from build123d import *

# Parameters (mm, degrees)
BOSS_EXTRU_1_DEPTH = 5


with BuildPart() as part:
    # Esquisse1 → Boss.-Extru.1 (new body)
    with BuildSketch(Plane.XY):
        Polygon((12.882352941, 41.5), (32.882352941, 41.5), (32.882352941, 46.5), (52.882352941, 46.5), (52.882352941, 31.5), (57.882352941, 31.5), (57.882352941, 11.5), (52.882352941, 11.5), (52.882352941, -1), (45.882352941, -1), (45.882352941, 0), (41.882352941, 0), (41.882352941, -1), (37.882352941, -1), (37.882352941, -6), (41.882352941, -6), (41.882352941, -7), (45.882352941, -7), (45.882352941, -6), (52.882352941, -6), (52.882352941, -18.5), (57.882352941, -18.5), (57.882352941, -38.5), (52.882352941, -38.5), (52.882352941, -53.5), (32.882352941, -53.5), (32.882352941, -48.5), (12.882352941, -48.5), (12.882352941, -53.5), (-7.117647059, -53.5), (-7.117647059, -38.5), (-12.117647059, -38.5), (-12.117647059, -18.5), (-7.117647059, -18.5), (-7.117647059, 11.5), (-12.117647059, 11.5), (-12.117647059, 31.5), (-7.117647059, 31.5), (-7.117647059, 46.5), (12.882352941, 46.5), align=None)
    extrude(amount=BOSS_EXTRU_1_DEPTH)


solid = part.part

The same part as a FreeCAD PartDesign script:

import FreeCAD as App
import Part
import Sketcher

V = App.Vector


def add_polygon(sketch, points):
    """Adds a closed chain of lines whose ends are joined by coincident constraints."""
    first, n = sketch.GeometryCount, len(points)
    for a, b in zip(points, points[1:] + points[:1]):
        sketch.addGeometry(Part.LineSegment(App.Vector(*a, 0), App.Vector(*b, 0)), False)
    for i in range(n):
        sketch.addConstraint(Sketcher.Constraint("Coincident", first + i, 2, first + (i + 1) % n, 1))

doc = App.newDocument("Part")
params = doc.addObject("Spreadsheet::Sheet", "Params")
for row, (alias, value) in enumerate([
    ("sketch1_width", "20 mm"),
    ("sketch1_width2", "5 mm"),
    ("sketch1_width3", "7 mm"),
    ("sketch1_width4", "4 mm"),
    ("sketch1_height", "15 mm"),
    ("pad1_length", "5 mm"),
], start=1):
    params.set(f"A{row}", alias)
    params.set(f"B{row}", "=" + value)
    params.setAlias(f"B{row}", alias)

body = doc.addObject("PartDesign::Body", "Body")

# Sketch on XY plane
sketch1 = doc.addObject("Sketcher::SketchObject", "Sketch")
body.addObject(sketch1)
sketch1.AttachmentSupport = (doc.XY_Plane, [""])
sketch1.MapMode = "FlatFace"
add_polygon(sketch1, [(32.882353, 41.5), (12.882353, 41.5), (12.882353, 46.5), (-7.117647, 46.5), (-7.117647, 31.5), (-12.117647, 31.5), (-12.117647, 11.5), (-7.117647, 11.5), (-7.117647, -18.5), (-12.117647, -18.5), (-12.117647, -38.5), (-7.117647, -38.5), (-7.117647, -53.5), (12.882353, -53.5), (12.882353, -48.5), (32.882353, -48.5), (32.882353, -53.5), (52.882353, -53.5), (52.882353, -38.5), (57.882353, -38.5), (57.882353, -18.5), (52.882353, -18.5), (52.882353, -6), (45.882353, -6), (45.882353, -7), (41.882353, -7), (41.882353, -6), (37.882353, -6), (37.882353, -1), (41.882353, -1), (41.882353, 0), (45.882353, 0), (45.882353, -1), (52.882353, -1), (52.882353, 11.5), (57.882353, 11.5), (57.882353, 31.5), (52.882353, 31.5), (52.882353, 46.5), (32.882353, 46.5)])  # lines 0-39
sketch1.addConstraint(Sketcher.Constraint("Horizontal", 0))
sketch1.addConstraint(Sketcher.Constraint("Vertical", 1))
sketch1.addConstraint(Sketcher.Constraint("Horizontal", 2))
sketch1.addConstraint(Sketcher.Constraint("Vertical", 3))
sketch1.addConstraint(Sketcher.Constraint("Horizontal", 4))
sketch1.addConstraint(Sketcher.Constraint("Vertical", 5))
sketch1.addConstraint(Sketcher.Constraint("Horizontal", 6))
sketch1.addConstraint(Sketcher.Constraint("Vertical", 7))
sketch1.addConstraint(Sketcher.Constraint("Horizontal", 8))
sketch1.addConstraint(Sketcher.Constraint("Vertical", 9))
sketch1.addConstraint(Sketcher.Constraint("Horizontal", 10))
sketch1.addConstraint(Sketcher.Constraint("Vertical", 11))
sketch1.addConstraint(Sketcher.Constraint("Horizontal", 12))
sketch1.addConstraint(Sketcher.Constraint("Vertical", 13))
sketch1.addConstraint(Sketcher.Constraint("Horizontal", 14))
sketch1.addConstraint(Sketcher.Constraint("Vertical", 15))
sketch1.addConstraint(Sketcher.Constraint("Horizontal", 16))
sketch1.addConstraint(Sketcher.Constraint("Vertical", 17))
sketch1.addConstraint(Sketcher.Constraint("Horizontal", 18))
sketch1.addConstraint(Sketcher.Constraint("Vertical", 19))
sketch1.addConstraint(Sketcher.Constraint("Horizontal", 20))
sketch1.addConstraint(Sketcher.Constraint("Vertical", 21))
sketch1.addConstraint(Sketcher.Constraint("Horizontal", 22))
sketch1.addConstraint(Sketcher.Constraint("Vertical", 23))
sketch1.addConstraint(Sketcher.Constraint("Horizontal", 24))
sketch1.addConstraint(Sketcher.Constraint("Vertical", 25))
sketch1.addConstraint(Sketcher.Constraint("Horizontal", 26))
sketch1.addConstraint(Sketcher.Constraint("Vertical", 27))
sketch1.addConstraint(Sketcher.Constraint("Horizontal", 28))
sketch1.addConstraint(Sketcher.Constraint("Vertical", 29))
sketch1.addConstraint(Sketcher.Constraint("Horizontal", 30))
sketch1.addConstraint(Sketcher.Constraint("Vertical", 31))
sketch1.addConstraint(Sketcher.Constraint("Horizontal", 32))
sketch1.addConstraint(Sketcher.Constraint("Vertical", 33))
sketch1.addConstraint(Sketcher.Constraint("Horizontal", 34))
sketch1.addConstraint(Sketcher.Constraint("Vertical", 35))
sketch1.addConstraint(Sketcher.Constraint("Horizontal", 36))
sketch1.addConstraint(Sketcher.Constraint("Vertical", 37))
sketch1.addConstraint(Sketcher.Constraint("Horizontal", 38))
sketch1.addConstraint(Sketcher.Constraint("Vertical", 39))
sketch1.addConstraint(Sketcher.Constraint("PointOnObject", 29, 2, -1))
sketch1.addConstraint(Sketcher.Constraint("Horizontal", 12, 2, 15, 2))
sketch1.addConstraint(Sketcher.Constraint("Horizontal", 10, 2, 17, 2))
sketch1.addConstraint(Sketcher.Constraint("Horizontal", 8, 2, 19, 2))
sketch1.addConstraint(Sketcher.Constraint("Horizontal", 22, 2, 25, 2))
sketch1.addConstraint(Sketcher.Constraint("Horizontal", 28, 2, 31, 2))
sketch1.addConstraint(Sketcher.Constraint("Horizontal", 6, 2, 33, 2))
sketch1.addConstraint(Sketcher.Constraint("Horizontal", 4, 2, 35, 2))
sketch1.addConstraint(Sketcher.Constraint("Horizontal", 2, 2, 37, 2))
sketch1.addConstraint(Sketcher.Constraint("Vertical", 3, 2, 6, 2))
sketch1.addConstraint(Sketcher.Constraint("Vertical", 5, 2, 8, 2))
sketch1.addConstraint(Sketcher.Constraint("Vertical", 7, 2, 10, 2))
sketch1.addConstraint(Sketcher.Constraint("Vertical", 1, 2, 12, 2))
sketch1.addConstraint(Sketcher.Constraint("Vertical", 17, 2, 20, 2))
sketch1.addConstraint(Sketcher.Constraint("Vertical", 25, 2, 28, 2))
sketch1.addConstraint(Sketcher.Constraint("Vertical", 23, 2, 30, 2))
sketch1.addConstraint(Sketcher.Constraint("Vertical", 21, 2, 32, 2))
sketch1.addConstraint(Sketcher.Constraint("Vertical", 19, 2, 34, 2))
sketch1.addConstraint(Sketcher.Constraint("Vertical", 33, 2, 36, 2))
sketch1.addConstraint(Sketcher.Constraint("Vertical", 15, 2, 38, 2))
sketch1.addConstraint(Sketcher.Constraint("Equal", 0, 2))
sketch1.addConstraint(Sketcher.Constraint("Equal", 14, 16))
sketch1.addConstraint(Sketcher.Constraint("Equal", 10, 18))
sketch1.addConstraint(Sketcher.Constraint("Equal", 24, 26))
sketch1.addConstraint(Sketcher.Constraint("Equal", 36, 1))
sketch1.addConstraint(Sketcher.Constraint("Equal", 38, 5))
sketch1.addConstraint(Sketcher.Constraint("Equal", 5, 9))
sketch1.addConstraint(Sketcher.Constraint("Equal", 3, 11))
sketch1.addConstraint(Sketcher.Constraint("Equal", 1, 13))
sketch1.addConstraint(Sketcher.Constraint("Equal", 15, 27))
sketch1.addConstraint(Sketcher.Constraint("Equal", 25, 29))
sketch1.addConstraint(Sketcher.Constraint("Equal", 21, 33))
sketch1.addConstraint(Sketcher.Constraint("DistanceX", 0, 2, 0, 1, 20.0))
sketch1.addConstraint(Sketcher.Constraint("DistanceX", 4, 2, 4, 1, 5.0))
sketch1.addConstraint(Sketcher.Constraint("DistanceX", 22, 2, 22, 1, 7.0))
sketch1.addConstraint(Sketcher.Constraint("DistanceX", 24, 2, 24, 1, 4.0))
sketch1.addConstraint(Sketcher.Constraint("DistanceY", 3, 2, 3, 1, 15.0))
sketch1.addConstraint(Sketcher.Constraint("DistanceY", 7, 2, 7, 1, 30.0))
sketch1.addConstraint(Sketcher.Constraint("DistanceY", 23, 2, 23, 1, 1.0))
sketch1.addConstraint(Sketcher.Constraint("DistanceX", -1, 1, 0, 2, 12.882353))
sketch1.setExpression("Constraints[112]", "Params.sketch1_width")
sketch1.setExpression("Constraints[113]", "Params.sketch1_width2")
sketch1.setExpression("Constraints[114]", "Params.sketch1_width3")
sketch1.setExpression("Constraints[115]", "Params.sketch1_width4")
sketch1.setExpression("Constraints[116]", "Params.sketch1_height")
pad1 = doc.addObject("PartDesign::Pad", "Pad")
body.addObject(pad1)
pad1.Profile = sketch1
pad1.setExpression("Length", "Params.pad1_length")

doc.recompute()
